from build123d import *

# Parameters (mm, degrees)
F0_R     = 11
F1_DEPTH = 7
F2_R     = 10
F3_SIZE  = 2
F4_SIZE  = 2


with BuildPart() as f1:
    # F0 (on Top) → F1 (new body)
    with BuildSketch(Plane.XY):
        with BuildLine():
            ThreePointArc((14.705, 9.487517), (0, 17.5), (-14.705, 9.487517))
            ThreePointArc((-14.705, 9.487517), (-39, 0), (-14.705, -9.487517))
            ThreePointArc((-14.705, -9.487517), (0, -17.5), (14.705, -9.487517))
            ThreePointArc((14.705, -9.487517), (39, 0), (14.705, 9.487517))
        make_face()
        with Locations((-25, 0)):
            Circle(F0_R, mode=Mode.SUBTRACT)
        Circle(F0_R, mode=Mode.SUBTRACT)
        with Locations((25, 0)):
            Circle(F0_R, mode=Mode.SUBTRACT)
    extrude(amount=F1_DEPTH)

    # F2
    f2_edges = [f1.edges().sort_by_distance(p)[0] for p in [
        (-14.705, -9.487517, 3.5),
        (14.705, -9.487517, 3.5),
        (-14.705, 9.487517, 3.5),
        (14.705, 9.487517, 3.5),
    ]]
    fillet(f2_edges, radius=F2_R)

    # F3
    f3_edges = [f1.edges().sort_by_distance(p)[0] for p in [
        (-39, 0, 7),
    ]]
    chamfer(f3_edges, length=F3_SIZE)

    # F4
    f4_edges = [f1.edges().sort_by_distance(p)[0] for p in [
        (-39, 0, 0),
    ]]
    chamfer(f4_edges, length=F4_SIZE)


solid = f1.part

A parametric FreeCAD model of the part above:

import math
import FreeCAD as App
import Part
import Sketcher


def edges_at(feature, points):
    """Names of the edges that pass closest to the given points."""
    edges = feature.Shape.Edges
    near = lambda p: min(range(len(edges)), key=lambda i: edges[i].distToShape(Part.Vertex(*p))[0])
    return sorted({f"Edge{near(p) + 1}" for p in points})

doc = App.newDocument("Part")
body = doc.addObject("PartDesign::Body", "Body")

sketch1 = body.newObject("Sketcher::SketchObject", "Sketch")
sketch1.AttachmentSupport = (doc.getObject("XY_Plane"), [""])
sketch1.MapMode = "FlatFace"
sketch1.addGeometry(Part.ArcOfCircle(Part.Circle(App.Vector(0, 0, 0), App.Vector(0, 0, 1), 18), math.radians(33), math.radians(147)), False)
sketch1.addGeometry(Part.ArcOfCircle(Part.Circle(App.Vector(-25, 0, 0), App.Vector(0, 0, 1), 14), math.radians(43), math.radians(317)), False)
sketch1.addGeometry(Part.ArcOfCircle(Part.Circle(App.Vector(0, 0, 0), App.Vector(0, 0, 1), 18), math.radians(-147), math.radians(-33)), False)
sketch1.addGeometry(Part.ArcOfCircle(Part.Circle(App.Vector(25, 0, 0), App.Vector(0, 0, 1), 14), math.radians(-137), math.radians(137)), False)
sketch1.addGeometry(Part.Circle(App.Vector(-25, 0, 0), App.Vector(0, 0, 1), 11), False)
sketch1.addGeometry(Part.Circle(App.Vector(0, 0, 0), App.Vector(0, 0, 1), 11), False)
sketch1.addGeometry(Part.Circle(App.Vector(25, 0, 0), App.Vector(0, 0, 1), 11), False)
sketch1.addConstraint(Sketcher.Constraint("Coincident", 0, 2, 1, 1))
sketch1.addConstraint(Sketcher.Constraint("Coincident", 1, 2, 2, 1))
sketch1.addConstraint(Sketcher.Constraint("Coincident", 2, 2, 3, 1))
sketch1.addConstraint(Sketcher.Constraint("Coincident", 3, 2, 0, 1))
sketch1.addConstraint(Sketcher.Constraint("Coincident", 0, 3, -1, 1))
sketch1.addConstraint(Sketcher.Constraint("Coincident", 2, 3, -1, 1))
sketch1.addConstraint(Sketcher.Constraint("Coincident", 5, 3, -1, 1))
sketch1.addConstraint(Sketcher.Constraint("Coincident", 4, 3, 1, 3))
sketch1.addConstraint(Sketcher.Constraint("Coincident", 6, 3, 3, 3))
sketch1.addConstraint(Sketcher.Constraint("Equal", 0, 2))
sketch1.addConstraint(Sketcher.Constraint("Equal", 1, 3))
sketch1.addConstraint(Sketcher.Constraint("Equal", 4, 5))
sketch1.addConstraint(Sketcher.Constraint("Equal", 5, 6))
sketch1.addConstraint(Sketcher.Constraint("Symmetric", 1, 3, 3, 3, -1, 1))
sketch1.addConstraint(Sketcher.Constraint("PointOnObject", 1, 3, -1))
sketch1.addConstraint(Sketcher.Constraint("Diameter", 4, 22.0))
sketch1.addConstraint(Sketcher.Constraint("Radius", 1, 14.0))
sketch1.addConstraint(Sketcher.Constraint("Radius", 0, 17.5))
sketch1.addConstraint(Sketcher.Constraint("DistanceX", 1, 3, -1, 1, 25.0))
pad1 = body.newObject("PartDesign::Pad", "Pad")
pad1.Profile = sketch1
pad1.Length = 7
doc.recompute()

fillet = body.newObject("PartDesign::Fillet", "Fillet")
fillet.Base = (pad1, edges_at(pad1, [
    (-14.705, -9.488, 3.5),
    (14.705, -9.488, 3.5),
    (-14.705, 9.488, 3.5),
    (14.705, 9.488, 3.5),
]))
fillet.Radius = 10
doc.recompute()

chamfer = body.newObject("PartDesign::Chamfer", "Chamfer")
chamfer.Base = (fillet, edges_at(fillet, [(-39, 0, 7)]))
chamfer.Size = 2
doc.recompute()

chamfer2 = body.newObject("PartDesign::Chamfer", "Chamfer001")
chamfer2.Base = (chamfer, edges_at(chamfer, [(-39, 0, 0)]))
chamfer2.Size = 2

doc.recompute()
